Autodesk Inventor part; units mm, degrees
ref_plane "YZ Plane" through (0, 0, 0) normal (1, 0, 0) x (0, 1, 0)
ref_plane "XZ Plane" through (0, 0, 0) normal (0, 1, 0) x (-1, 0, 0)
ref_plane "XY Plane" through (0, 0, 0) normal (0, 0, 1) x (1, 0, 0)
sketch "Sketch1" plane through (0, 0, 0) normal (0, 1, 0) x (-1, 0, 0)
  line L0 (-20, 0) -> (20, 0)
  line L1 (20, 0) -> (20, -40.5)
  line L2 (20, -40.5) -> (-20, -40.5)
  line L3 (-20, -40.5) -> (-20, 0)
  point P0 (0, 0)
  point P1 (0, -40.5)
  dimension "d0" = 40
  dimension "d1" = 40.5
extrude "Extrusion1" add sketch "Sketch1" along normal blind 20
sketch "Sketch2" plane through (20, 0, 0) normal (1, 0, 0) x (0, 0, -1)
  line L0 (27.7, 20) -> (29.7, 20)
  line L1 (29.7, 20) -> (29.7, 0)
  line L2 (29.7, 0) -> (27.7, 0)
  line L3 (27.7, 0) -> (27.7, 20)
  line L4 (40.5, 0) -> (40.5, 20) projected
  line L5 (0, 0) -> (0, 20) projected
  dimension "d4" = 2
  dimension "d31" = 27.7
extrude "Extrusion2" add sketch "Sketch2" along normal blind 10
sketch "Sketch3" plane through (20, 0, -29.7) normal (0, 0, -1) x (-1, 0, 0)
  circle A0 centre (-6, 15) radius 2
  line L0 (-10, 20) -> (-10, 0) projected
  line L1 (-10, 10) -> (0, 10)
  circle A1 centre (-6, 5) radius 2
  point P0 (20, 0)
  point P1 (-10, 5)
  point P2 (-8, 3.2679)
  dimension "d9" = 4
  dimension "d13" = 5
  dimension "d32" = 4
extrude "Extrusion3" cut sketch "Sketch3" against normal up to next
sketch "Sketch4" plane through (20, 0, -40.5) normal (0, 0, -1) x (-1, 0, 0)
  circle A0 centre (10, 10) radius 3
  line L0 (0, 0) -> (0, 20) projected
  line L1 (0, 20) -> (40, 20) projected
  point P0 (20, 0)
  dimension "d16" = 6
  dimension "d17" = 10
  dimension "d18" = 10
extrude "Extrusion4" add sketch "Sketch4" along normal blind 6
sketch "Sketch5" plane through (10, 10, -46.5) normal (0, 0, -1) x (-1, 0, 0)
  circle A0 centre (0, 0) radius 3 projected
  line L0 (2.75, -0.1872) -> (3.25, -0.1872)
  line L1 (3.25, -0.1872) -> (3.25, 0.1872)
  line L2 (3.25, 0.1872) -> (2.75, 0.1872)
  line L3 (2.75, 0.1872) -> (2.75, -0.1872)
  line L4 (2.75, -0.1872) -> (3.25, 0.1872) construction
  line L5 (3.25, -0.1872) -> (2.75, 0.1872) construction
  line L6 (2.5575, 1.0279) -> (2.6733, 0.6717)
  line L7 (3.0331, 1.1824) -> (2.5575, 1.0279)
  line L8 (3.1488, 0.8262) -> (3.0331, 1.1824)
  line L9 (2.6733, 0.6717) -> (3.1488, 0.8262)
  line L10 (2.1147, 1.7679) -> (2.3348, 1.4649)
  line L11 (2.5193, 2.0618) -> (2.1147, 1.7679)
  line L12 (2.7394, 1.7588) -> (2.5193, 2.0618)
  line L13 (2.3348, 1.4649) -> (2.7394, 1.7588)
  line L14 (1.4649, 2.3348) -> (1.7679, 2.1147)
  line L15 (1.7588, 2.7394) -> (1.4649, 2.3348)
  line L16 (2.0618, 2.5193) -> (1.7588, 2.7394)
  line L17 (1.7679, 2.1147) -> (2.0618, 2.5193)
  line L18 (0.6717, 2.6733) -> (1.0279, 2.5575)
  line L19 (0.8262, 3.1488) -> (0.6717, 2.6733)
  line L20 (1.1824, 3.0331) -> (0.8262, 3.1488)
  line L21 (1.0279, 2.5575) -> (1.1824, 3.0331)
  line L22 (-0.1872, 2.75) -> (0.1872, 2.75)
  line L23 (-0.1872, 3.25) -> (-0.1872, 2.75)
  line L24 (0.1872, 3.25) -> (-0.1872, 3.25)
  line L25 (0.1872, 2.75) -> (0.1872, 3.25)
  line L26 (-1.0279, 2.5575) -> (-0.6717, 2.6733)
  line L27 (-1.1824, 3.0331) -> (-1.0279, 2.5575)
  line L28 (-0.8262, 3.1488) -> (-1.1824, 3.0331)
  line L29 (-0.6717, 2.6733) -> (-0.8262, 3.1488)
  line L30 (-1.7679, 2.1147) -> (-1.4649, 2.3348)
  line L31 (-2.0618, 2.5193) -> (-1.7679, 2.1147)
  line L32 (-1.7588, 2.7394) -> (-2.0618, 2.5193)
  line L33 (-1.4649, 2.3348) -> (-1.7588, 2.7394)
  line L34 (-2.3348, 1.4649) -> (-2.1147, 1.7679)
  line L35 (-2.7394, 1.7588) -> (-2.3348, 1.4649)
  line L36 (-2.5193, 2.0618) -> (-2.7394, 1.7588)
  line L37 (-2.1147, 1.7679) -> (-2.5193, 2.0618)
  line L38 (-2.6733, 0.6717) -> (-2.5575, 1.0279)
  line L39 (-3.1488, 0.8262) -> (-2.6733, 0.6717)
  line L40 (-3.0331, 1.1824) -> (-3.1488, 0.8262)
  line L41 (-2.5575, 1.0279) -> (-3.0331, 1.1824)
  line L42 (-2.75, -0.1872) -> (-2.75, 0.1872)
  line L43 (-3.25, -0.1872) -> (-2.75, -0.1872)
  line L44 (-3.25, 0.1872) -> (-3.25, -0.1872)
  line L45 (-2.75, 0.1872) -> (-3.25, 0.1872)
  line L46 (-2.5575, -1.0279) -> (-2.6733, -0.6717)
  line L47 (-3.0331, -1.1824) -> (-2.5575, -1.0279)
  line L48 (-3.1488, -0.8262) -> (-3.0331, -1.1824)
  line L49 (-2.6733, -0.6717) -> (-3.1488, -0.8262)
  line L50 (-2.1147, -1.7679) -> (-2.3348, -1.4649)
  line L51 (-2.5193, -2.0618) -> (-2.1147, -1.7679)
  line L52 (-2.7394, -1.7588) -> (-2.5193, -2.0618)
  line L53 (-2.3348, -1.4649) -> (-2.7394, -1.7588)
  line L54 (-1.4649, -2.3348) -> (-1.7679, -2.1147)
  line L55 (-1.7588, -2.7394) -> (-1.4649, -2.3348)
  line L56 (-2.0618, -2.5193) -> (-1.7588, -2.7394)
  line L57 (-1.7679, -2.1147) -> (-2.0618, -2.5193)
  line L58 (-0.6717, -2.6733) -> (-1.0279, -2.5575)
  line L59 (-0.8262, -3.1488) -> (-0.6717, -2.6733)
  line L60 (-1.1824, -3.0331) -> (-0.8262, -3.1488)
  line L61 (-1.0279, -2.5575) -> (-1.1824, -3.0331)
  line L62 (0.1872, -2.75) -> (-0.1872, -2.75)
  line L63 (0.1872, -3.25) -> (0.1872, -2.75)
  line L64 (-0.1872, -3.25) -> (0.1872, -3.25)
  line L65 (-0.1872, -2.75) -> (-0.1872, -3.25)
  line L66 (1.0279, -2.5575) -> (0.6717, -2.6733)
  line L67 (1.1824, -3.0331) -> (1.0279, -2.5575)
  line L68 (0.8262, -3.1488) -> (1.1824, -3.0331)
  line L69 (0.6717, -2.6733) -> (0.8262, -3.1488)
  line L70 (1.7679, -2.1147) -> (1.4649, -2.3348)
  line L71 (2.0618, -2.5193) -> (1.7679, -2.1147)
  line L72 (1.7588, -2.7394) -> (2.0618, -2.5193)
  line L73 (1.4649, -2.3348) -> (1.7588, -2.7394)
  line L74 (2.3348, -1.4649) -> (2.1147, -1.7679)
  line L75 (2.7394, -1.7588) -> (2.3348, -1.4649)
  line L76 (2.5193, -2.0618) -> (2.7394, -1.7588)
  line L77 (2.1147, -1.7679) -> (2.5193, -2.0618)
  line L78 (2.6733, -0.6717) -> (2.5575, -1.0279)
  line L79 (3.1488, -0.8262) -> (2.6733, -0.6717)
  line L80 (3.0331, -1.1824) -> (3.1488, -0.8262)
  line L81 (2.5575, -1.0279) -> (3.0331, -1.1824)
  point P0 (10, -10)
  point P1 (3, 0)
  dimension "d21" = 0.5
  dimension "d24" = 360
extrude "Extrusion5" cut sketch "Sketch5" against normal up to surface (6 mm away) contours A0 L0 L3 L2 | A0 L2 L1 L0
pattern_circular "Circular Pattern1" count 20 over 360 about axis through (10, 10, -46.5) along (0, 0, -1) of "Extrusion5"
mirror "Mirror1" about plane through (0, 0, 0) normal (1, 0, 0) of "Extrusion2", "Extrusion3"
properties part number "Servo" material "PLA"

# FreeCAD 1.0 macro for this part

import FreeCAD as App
import Part
import Sketcher
from FreeCAD import Vector
Q = App.Units.Quantity


def add_polygon(sketch, points):
    """Adds a closed chain of lines whose ends are joined by coincident constraints."""
    first, n = sketch.GeometryCount, len(points)
    for a, b in zip(points, points[1:] + points[:1]):
        sketch.addGeometry(Part.LineSegment(App.Vector(*a, 0), App.Vector(*b, 0)), False)
    for i in range(n):
        sketch.addConstraint(Sketcher.Constraint("Coincident", first + i, 2, first + (i + 1) % n, 1))

doc = App.newDocument("Part")
params = doc.addObject("Spreadsheet::Sheet", "Params")
for row, (alias, value) in enumerate([
    ("sketch1_width", "40 mm"),
    ("sketch1_height", "40.5 mm"),
    ("pad1_length", "20 mm"),
    ("sketch2_height", "2 mm"),
    ("sketch2_width", "20 mm"),
    ("pad2_length", "10 mm"),
    ("sketch3_diameter", "4 mm"),
    ("sketch4_diameter", "6 mm"),
    ("pad3_length", "6 mm"),
    ("sketch5_width", "0.5 mm"),
    ("pocket2_length", "6 mm"),
], start=1):
    params.set(f"A{row}", alias)
    params.set(f"B{row}", "=" + value)
    params.setAlias(f"B{row}", alias)

body = doc.addObject("PartDesign::Body", "Body")

sketch1 = body.newObject("Sketcher::SketchObject", "Sketch")
sketch1.AttachmentSupport = (doc.getObject("XZ_Plane"), [""])
sketch1.MapMode = "FlatFace"
add_polygon(sketch1, [(-20, 0), (20, 0), (20, -40), (-20, -40)])
sketch1.addConstraint(Sketcher.Constraint("Horizontal", 0))
sketch1.addConstraint(Sketcher.Constraint("Vertical", 1))
sketch1.addConstraint(Sketcher.Constraint("Horizontal", 2))
sketch1.addConstraint(Sketcher.Constraint("Vertical", 3))
sketch1.addConstraint(Sketcher.Constraint("Symmetric", 0, 2, 3, 2, -1, 1))
sketch1.addConstraint(Sketcher.Constraint("DistanceX", 0, 1, 0, 2, Q("40 mm")))
sketch1.addConstraint(Sketcher.Constraint("DistanceY", 1, 2, 1, 1, Q("40.5 mm")))
sketch1.setExpression("Constraints[9]", "Params.sketch1_width")
sketch1.setExpression("Constraints[10]", "Params.sketch1_height")
pad1 = body.newObject("PartDesign::Pad", "Pad")
pad1.Profile = sketch1
pad1.setExpression("Length", "Params.pad1_length")
pad1.Reversed = True

sketch2 = body.newObject("Sketcher::SketchObject", "Sketch001")
sketch2.AttachmentSupport = (doc.getObject("YZ_Plane"), [""])
sketch2.MapMode = "FlatFace"
sketch2.AttachmentOffset = App.Placement(Vector(0, 0, 20), App.Rotation())
add_polygon(sketch2, [(20, -29.7), (20, -27.7), (0, -27.7), (0, -29.7)])
sketch2.addConstraint(Sketcher.Constraint("Vertical", 0))
sketch2.addConstraint(Sketcher.Constraint("Horizontal", 1))
sketch2.addConstraint(Sketcher.Constraint("Vertical", 2))
sketch2.addConstraint(Sketcher.Constraint("Horizontal", 3))
sketch2.addConstraint(Sketcher.Constraint("PointOnObject", 1, 2, -2))
sketch2.addConstraint(Sketcher.Constraint("DistanceY", 0, 1, 0, 2, Q("2 mm")))
sketch2.addConstraint(Sketcher.Constraint("DistanceY", 0, 2, -1, 1, Q("27.7 mm")))
sketch2.addConstraint(Sketcher.Constraint("DistanceX", 1, 2, 1, 1, Q("20 mm")))
sketch2.setExpression("Constraints[9]", "Params.sketch2_height")
sketch2.setExpression("Constraints[11]", "Params.sketch2_width")
pad2 = body.newObject("PartDesign::Pad", "Pad001")
pad2.Profile = sketch2
pad2.setExpression("Length", "Params.pad2_length")

sketch3 = body.newObject("Sketcher::SketchObject", "Sketch002")
sketch3.AttachmentSupport = (doc.getObject("XY_Plane"), [""])
sketch3.MapMode = "FlatFace"
sketch3.AttachmentOffset = App.Placement(Vector(0, 0, -29.7), App.Rotation())
sketch3.addGeometry(Part.Circle(Vector(26, 15, 0), Vector(0, 0, 1), 2), False)
sketch3.addGeometry(Part.Circle(Vector(26, 5, 0), Vector(0, 0, 1), 2), False)
sketch3.addConstraint(Sketcher.Constraint("Equal", 0, 1))
sketch3.addConstraint(Sketcher.Constraint("Vertical", 0, 3, 1, 3))
sketch3.addConstraint(Sketcher.Constraint("Diameter", 0, Q("4 mm")))
sketch3.addConstraint(Sketcher.Constraint("DistanceY", -1, 1, 1, 3, Q("5 mm")))
sketch3.addConstraint(Sketcher.Constraint("DistanceX", -1, 1, 0, 3, Q("26 mm")))
sketch3.addConstraint(Sketcher.Constraint("DistanceY", -1, 1, 0, 3, Q("15 mm")))
sketch3.setExpression("Constraints[2]", "Params.sketch3_diameter")
pocket1 = body.newObject("PartDesign::Pocket", "Pocket")
pocket1.Profile = sketch3
pocket1.Type = "UpToFirst"
pocket1.Reversed = True

sketch4 = body.newObject("Sketcher::SketchObject", "Sketch003")
sketch4.AttachmentSupport = (doc.getObject("XY_Plane"), [""])
sketch4.MapMode = "FlatFace"
sketch4.AttachmentOffset = App.Placement(Vector(0, 0, -40.5), App.Rotation())
sketch4.addGeometry(Part.Circle(Vector(10, 10, 0), Vector(0, 0, 1), 3), False)
sketch4.addConstraint(Sketcher.Constraint("Diameter", 0, Q("6 mm")))
sketch4.addConstraint(Sketcher.Constraint("DistanceX", -1, 1, 0, 3, Q("10 mm")))
sketch4.addConstraint(Sketcher.Constraint("DistanceY", -1, 1, 0, 3, Q("10 mm")))
sketch4.setExpression("Constraints[0]", "Params.sketch4_diameter")
pad3 = body.newObject("PartDesign::Pad", "Pad002")
pad3.Profile = sketch4
pad3.setExpression("Length", "Params.pad3_length")
pad3.Reversed = True

sketch5 = body.newObject("Sketcher::SketchObject", "Sketch004")
sketch5.AttachmentSupport = (doc.getObject("XY_Plane"), [""])
sketch5.MapMode = "FlatFace"
sketch5.AttachmentOffset = App.Placement(Vector(0, 0, -46.5), App.Rotation())
add_polygon(sketch5, [(7.25, 9.81), (6.75, 9.81), (6.75, 10.19), (7.25, 10.19)])
sketch5.addConstraint(Sketcher.Constraint("Horizontal", 0))
sketch5.addConstraint(Sketcher.Constraint("Vertical", 1))
sketch5.addConstraint(Sketcher.Constraint("Horizontal", 2))
sketch5.addConstraint(Sketcher.Constraint("Vertical", 3))
sketch5.addConstraint(Sketcher.Constraint("DistanceX", 0, 2, 0, 1, Q("0.5 mm")))
sketch5.addConstraint(Sketcher.Constraint("DistanceX", -1, 1, 0, 2, Q("6.75 mm")))
sketch5.addConstraint(Sketcher.Constraint("DistanceY", 1, 1, 1, 2, Q("0.3744 mm")))
sketch5.addConstraint(Sketcher.Constraint("DistanceY", -1, 1, 0, 2, Q("9.8128 mm")))
sketch5.setExpression("Constraints[8]", "Params.sketch5_width")
pocket2 = body.newObject("PartDesign::Pocket", "Pocket001")
pocket2.Profile = sketch5
pocket2.setExpression("Length", "Params.pocket2_length")
pocket2.Reversed = True
doc.recompute()

datumline = body.newObject("PartDesign::Line", "DatumLine")
datumline.Placement = App.Placement(Vector(10, 10, 0), App.Rotation(Vector(0, 0, 1), Vector(0, 0, 1)))
polarpattern = body.newObject("PartDesign::PolarPattern", "PolarPattern")
polarpattern.Originals = [pocket2]
polarpattern.Axis = (datumline, [""])
polarpattern.Angle = 360
polarpattern.Occurrences = 20
body.Tip = polarpattern
doc.recompute()

mirrored = body.newObject("PartDesign::Mirrored", "Mirrored")
mirrored.Originals = [pad2, pocket1]
mirrored.MirrorPlane = (doc.getObject("YZ_Plane"), [""])
body.Tip = mirrored

doc.recompute()
